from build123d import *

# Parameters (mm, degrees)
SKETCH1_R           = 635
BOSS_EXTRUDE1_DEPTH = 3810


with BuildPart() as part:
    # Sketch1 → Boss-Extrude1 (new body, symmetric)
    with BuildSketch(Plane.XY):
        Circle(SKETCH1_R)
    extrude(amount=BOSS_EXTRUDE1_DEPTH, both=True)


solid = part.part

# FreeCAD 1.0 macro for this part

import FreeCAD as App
import Part
import Sketcher
Q = App.Units.Quantity

doc = App.newDocument("Part")
body = doc.addObject("PartDesign::Body", "Body")

# Sketch on XY plane
sketch1 = doc.addObject("Sketcher::SketchObject", "Sketch")
body.addObject(sketch1)
sketch1.AttachmentSupport = (doc.XY_Plane, [""])
sketch1.MapMode = "FlatFace"
sketch1.addGeometry(Part.Circle(App.Vector(0, 0, 0), App.Vector(0, 0, 1), 635), False)
sketch1.addConstraint(Sketcher.Constraint("Coincident", 0, 3, -1, 1))
sketch1.addConstraint(Sketcher.Constraint("Diameter", 0, Q("50 in")))
pad1 = doc.addObject("PartDesign::Pad", "Pad")
body.addObject(pad1)
pad1.Profile = sketch1
pad1.Length = Q("300 in")
pad1.Midplane = True

doc.recompute()
